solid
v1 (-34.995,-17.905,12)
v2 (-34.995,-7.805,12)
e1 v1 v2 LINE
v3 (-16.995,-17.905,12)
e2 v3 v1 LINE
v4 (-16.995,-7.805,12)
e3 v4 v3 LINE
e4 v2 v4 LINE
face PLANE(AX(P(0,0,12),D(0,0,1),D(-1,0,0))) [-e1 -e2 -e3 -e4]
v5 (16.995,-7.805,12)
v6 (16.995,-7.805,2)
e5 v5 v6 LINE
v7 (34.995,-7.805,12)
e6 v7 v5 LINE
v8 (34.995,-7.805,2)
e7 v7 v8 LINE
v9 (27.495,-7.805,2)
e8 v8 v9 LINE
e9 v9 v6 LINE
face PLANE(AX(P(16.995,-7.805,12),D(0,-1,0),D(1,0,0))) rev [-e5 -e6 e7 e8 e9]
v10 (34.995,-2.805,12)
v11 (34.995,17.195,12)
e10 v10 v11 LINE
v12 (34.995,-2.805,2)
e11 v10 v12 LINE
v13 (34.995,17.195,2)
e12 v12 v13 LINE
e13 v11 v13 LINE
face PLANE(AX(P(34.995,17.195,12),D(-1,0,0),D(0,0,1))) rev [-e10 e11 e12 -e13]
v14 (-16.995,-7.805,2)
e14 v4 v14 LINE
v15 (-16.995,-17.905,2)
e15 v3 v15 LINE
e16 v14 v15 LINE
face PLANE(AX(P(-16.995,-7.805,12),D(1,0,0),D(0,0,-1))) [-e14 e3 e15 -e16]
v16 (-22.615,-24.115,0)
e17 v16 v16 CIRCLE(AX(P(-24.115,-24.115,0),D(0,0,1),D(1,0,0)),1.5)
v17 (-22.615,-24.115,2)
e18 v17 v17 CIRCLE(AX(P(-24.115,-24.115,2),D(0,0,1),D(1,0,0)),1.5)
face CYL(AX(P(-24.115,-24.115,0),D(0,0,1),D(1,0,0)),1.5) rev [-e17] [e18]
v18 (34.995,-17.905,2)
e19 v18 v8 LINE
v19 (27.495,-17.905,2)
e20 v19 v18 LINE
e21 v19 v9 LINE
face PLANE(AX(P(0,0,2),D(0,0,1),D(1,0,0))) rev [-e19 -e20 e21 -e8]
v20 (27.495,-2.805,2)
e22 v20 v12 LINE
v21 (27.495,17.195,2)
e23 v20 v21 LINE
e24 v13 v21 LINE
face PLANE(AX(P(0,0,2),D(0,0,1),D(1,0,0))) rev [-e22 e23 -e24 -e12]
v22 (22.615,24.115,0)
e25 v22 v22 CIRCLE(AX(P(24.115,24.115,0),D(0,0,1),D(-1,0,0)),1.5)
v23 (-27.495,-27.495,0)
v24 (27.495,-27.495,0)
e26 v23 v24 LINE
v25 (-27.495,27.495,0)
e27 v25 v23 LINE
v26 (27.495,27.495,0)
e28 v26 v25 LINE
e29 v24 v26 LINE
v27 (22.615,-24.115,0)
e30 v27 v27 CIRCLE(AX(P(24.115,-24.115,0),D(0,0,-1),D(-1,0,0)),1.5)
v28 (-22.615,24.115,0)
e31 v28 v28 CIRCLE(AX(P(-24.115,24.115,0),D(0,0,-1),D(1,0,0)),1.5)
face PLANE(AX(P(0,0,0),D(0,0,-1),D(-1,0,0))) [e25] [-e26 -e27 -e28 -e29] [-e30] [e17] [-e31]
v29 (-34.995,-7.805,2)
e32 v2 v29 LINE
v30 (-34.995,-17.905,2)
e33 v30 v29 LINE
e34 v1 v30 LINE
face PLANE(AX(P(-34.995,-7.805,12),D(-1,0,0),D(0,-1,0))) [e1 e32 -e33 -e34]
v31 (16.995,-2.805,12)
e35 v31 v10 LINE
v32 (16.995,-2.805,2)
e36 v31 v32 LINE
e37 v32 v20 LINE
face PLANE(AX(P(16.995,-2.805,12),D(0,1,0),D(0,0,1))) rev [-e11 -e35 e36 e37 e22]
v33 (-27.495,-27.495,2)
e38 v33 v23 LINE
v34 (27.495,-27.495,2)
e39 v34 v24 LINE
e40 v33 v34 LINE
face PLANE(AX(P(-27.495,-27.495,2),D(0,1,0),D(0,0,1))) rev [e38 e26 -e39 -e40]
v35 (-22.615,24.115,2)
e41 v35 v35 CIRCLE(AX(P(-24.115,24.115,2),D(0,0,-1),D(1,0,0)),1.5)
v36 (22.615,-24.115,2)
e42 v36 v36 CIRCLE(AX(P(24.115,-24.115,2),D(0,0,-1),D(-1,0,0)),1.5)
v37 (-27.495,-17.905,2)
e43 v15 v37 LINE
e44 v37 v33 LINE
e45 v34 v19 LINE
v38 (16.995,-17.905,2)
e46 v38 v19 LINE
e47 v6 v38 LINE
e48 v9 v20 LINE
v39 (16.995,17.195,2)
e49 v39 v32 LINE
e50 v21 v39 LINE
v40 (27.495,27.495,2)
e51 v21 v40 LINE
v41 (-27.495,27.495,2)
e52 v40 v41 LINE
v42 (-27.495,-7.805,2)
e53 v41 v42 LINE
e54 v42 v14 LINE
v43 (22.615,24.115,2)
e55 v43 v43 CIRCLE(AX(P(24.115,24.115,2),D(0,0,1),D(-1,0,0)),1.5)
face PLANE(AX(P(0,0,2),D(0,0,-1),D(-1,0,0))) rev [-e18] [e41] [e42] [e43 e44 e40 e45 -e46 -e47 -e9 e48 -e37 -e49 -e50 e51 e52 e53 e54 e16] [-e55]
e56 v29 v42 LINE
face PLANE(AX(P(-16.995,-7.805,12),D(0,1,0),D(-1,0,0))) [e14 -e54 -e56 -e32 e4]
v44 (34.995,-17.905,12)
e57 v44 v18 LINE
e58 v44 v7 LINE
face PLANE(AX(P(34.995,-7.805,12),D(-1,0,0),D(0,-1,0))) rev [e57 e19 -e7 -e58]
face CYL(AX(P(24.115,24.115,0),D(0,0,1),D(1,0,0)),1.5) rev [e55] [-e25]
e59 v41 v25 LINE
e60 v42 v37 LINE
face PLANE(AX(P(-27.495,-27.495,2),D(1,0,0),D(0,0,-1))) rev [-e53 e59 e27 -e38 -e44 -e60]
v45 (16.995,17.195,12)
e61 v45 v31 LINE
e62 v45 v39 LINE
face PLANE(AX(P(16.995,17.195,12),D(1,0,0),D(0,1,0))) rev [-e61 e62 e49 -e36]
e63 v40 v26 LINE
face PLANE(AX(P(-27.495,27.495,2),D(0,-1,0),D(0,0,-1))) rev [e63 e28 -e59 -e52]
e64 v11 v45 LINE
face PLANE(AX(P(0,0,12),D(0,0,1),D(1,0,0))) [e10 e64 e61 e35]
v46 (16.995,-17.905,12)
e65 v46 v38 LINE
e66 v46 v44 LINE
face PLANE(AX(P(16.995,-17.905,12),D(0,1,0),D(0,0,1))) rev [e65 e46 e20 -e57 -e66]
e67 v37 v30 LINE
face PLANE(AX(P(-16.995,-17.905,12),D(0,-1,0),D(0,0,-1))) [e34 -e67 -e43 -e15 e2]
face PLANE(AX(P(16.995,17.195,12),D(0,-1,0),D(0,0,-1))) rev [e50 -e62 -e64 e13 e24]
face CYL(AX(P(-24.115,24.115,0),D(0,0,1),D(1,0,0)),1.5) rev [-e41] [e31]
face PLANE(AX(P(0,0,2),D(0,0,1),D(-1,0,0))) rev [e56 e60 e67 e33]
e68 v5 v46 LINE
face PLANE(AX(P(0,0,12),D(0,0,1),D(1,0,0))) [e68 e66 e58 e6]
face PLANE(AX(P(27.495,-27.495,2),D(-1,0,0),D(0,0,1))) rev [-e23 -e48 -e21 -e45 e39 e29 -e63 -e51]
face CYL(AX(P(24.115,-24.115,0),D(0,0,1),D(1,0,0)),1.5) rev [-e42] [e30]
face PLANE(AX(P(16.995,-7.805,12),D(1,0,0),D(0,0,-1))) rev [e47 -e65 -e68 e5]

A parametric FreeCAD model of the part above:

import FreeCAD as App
import Part
import Sketcher
from FreeCAD import Vector
Q = App.Units.Quantity

doc = App.newDocument("Part")
params = doc.addObject("Spreadsheet::Sheet", "Params")
for row, (alias, value) in enumerate([
    ("sketch1_width", "54.99 mm"),
    ("pad1_length", "2 mm"),
    ("sketch2_diameter", "3 mm"),
    ("sketch3_diameter", "3 mm"),
    ("sketch4_width", "18 mm"),
    ("sketch4_height", "20 mm"),
    ("pad2_length", "10 mm"),
    ("sketch5_width", "18 mm"),
    ("sketch5_height", "10.1 mm"),
    ("pad3_length", "10 mm"),
], start=1):
    params.set(f"A{row}", alias)
    params.set(f"B{row}", "=" + value)
    params.setAlias(f"B{row}", alias)

body = doc.addObject("PartDesign::Body", "Body")

# Sketch on XY plane
sketch1 = body.newObject("Sketcher::SketchObject", "Sketch")
sketch1.AttachmentSupport = (doc.getObject("XY_Plane"), [""])
sketch1.MapMode = "FlatFace"
sketch1.addGeometry([
    Part.LineSegment(Vector(-27, 27, 0), Vector(-27, -27, 0)),
    Part.LineSegment(Vector(-27, -27, 0), Vector(27, -27, 0)),
    Part.LineSegment(Vector(27, -27, 0), Vector(27, 27, 0)),
    Part.LineSegment(Vector(27, 27, 0), Vector(-27, 27, 0)),
], False)
sketch1.addConstraint([
    Sketcher.Constraint("Coincident", 0, 2, 1, 1),
    Sketcher.Constraint("Coincident", 1, 2, 2, 1),
    Sketcher.Constraint("Coincident", 2, 2, 3, 1),
    Sketcher.Constraint("Coincident", 3, 2, 0, 1),
    Sketcher.Constraint("Vertical", 0),
    Sketcher.Constraint("Horizontal", 1),
    Sketcher.Constraint("Vertical", 2),
    Sketcher.Constraint("Horizontal", 3),
    Sketcher.Constraint("Symmetric", 0, 2, 2, 2, -1, 1),
    Sketcher.Constraint("Equal", 3, 0),
    Sketcher.Constraint("DistanceX", 1, 1, 1, 2, Q("54.99 mm")),
])
sketch1.setExpression("Constraints[10]", "Params.sketch1_width")
pad1 = body.newObject("PartDesign::Pad", "Pad")
pad1.Profile = sketch1
pad1.setExpression("Length", "Params.pad1_length")

# Sketch on XY plane
sketch2 = body.newObject("Sketcher::SketchObject", "Sketch001")
sketch2.AttachmentSupport = (doc.getObject("XY_Plane"), [""])
sketch2.MapMode = "FlatFace"
sketch2.AttachmentOffset = App.Placement(Vector(0, 0, 2), App.Rotation())
sketch2.addGeometry(Part.Circle(Vector(-24.1, -24.1, 0), Vector(0, 0, 1), 1.5), False)
sketch2.addConstraint([
    Sketcher.Constraint("Diameter", 0, Q("3 mm")),
    Sketcher.Constraint("DistanceX", 0, 3, -1, 1, Q("24.115 mm")),
    Sketcher.Constraint("DistanceY", 0, 3, -1, 1, Q("24.115 mm")),
])
sketch2.setExpression("Constraints[0]", "Params.sketch2_diameter")
pocket1 = body.newObject("PartDesign::Pocket", "Pocket")
pocket1.Profile = sketch2
pocket1.Type = "ThroughAll"
doc.recompute()

mirrored = body.newObject("PartDesign::Mirrored", "Mirrored")
mirrored.Originals = [pocket1]
mirrored.MirrorPlane = (doc.getObject("XZ_Plane"), [""])
body.Tip = mirrored
doc.recompute()

mirrored2 = body.newObject("PartDesign::Mirrored", "Mirrored001")
mirrored2.Originals = [pocket1]
mirrored2.MirrorPlane = (doc.getObject("YZ_Plane"), [""])
body.Tip = mirrored2

# Sketch on XY plane
sketch3 = body.newObject("Sketcher::SketchObject", "Sketch002")
sketch3.AttachmentSupport = (doc.getObject("XY_Plane"), [""])
sketch3.MapMode = "FlatFace"
sketch3.AttachmentOffset = App.Placement(Vector(0, 0, 2), App.Rotation())
sketch3.addGeometry(Part.Circle(Vector(24.1, 24.1, 0), Vector(0, 0, 1), 1.5), False)
sketch3.addConstraint([
    Sketcher.Constraint("Diameter", 0, Q("3 mm")),
    Sketcher.Constraint("DistanceX", -1, 1, 0, 3, Q("24.115 mm")),
    Sketcher.Constraint("DistanceY", -1, 1, 0, 3, Q("24.115 mm")),
])
sketch3.setExpression("Constraints[0]", "Params.sketch3_diameter")
pocket2 = body.newObject("PartDesign::Pocket", "Pocket001")
pocket2.Profile = sketch3
pocket2.Type = "ThroughAll"

# Sketch on XY plane
sketch4 = body.newObject("Sketcher::SketchObject", "Sketch003")
sketch4.AttachmentSupport = (doc.getObject("XY_Plane"), [""])
sketch4.MapMode = "FlatFace"
sketch4.AttachmentOffset = App.Placement(Vector(0, 0, 2), App.Rotation())
sketch4.addGeometry([
    Part.LineSegment(Vector(17, 17, 0), Vector(17, -3, 0)),
    Part.LineSegment(Vector(17, -3, 0), Vector(35, -3, 0)),
    Part.LineSegment(Vector(35, -3, 0), Vector(35, 17, 0)),
    Part.LineSegment(Vector(35, 17, 0), Vector(17, 17, 0)),
], False)
sketch4.addConstraint([
    Sketcher.Constraint("Coincident", 0, 2, 1, 1),
    Sketcher.Constraint("Coincident", 1, 2, 2, 1),
    Sketcher.Constraint("Coincident", 2, 2, 3, 1),
    Sketcher.Constraint("Coincident", 3, 2, 0, 1),
    Sketcher.Constraint("Vertical", 0),
    Sketcher.Constraint("Horizontal", 1),
    Sketcher.Constraint("Vertical", 2),
    Sketcher.Constraint("Horizontal", 3),
    Sketcher.Constraint("DistanceX", 1, 1, 1, 2, Q("18 mm")),
    Sketcher.Constraint("DistanceY", 0, 2, 0, 1, Q("20 mm")),
    Sketcher.Constraint("DistanceX", -1, 1, 0, 2, Q("16.995 mm")),
    Sketcher.Constraint("DistanceY", 0, 2, -1, 1, Q("2.805 mm")),
])
sketch4.setExpression("Constraints[8]", "Params.sketch4_width")
sketch4.setExpression("Constraints[9]", "Params.sketch4_height")
pad2 = body.newObject("PartDesign::Pad", "Pad001")
pad2.Profile = sketch4
pad2.setExpression("Length", "Params.pad2_length")

# Sketch on XY plane
sketch5 = body.newObject("Sketcher::SketchObject", "Sketch004")
sketch5.AttachmentSupport = (doc.getObject("XY_Plane"), [""])
sketch5.MapMode = "FlatFace"
sketch5.AttachmentOffset = App.Placement(Vector(0, 0, 2), App.Rotation())
sketch5.addGeometry([
    Part.LineSegment(Vector(17, -8, 0), Vector(17, -18, 0)),
    Part.LineSegment(Vector(17, -18, 0), Vector(35, -18, 0)),
    Part.LineSegment(Vector(35, -18, 0), Vector(35, -8, 0)),
    Part.LineSegment(Vector(35, -8, 0), Vector(17, -8, 0)),
], False)
sketch5.addConstraint([
    Sketcher.Constraint("Coincident", 0, 2, 1, 1),
    Sketcher.Constraint("Coincident", 1, 2, 2, 1),
    Sketcher.Constraint("Coincident", 2, 2, 3, 1),
    Sketcher.Constraint("Coincident", 3, 2, 0, 1),
    Sketcher.Constraint("Vertical", 0),
    Sketcher.Constraint("Horizontal", 1),
    Sketcher.Constraint("Vertical", 2),
    Sketcher.Constraint("Horizontal", 3),
    Sketcher.Constraint("DistanceX", 1, 1, 1, 2, Q("18 mm")),
    Sketcher.Constraint("DistanceY", 0, 2, 0, 1, Q("10.1 mm")),
    Sketcher.Constraint("DistanceX", -1, 1, 0, 2, Q("16.995 mm")),
    Sketcher.Constraint("DistanceY", 0, 2, -1, 1, Q("17.905 mm")),
])
sketch5.setExpression("Constraints[8]", "Params.sketch5_width")
sketch5.setExpression("Constraints[9]", "Params.sketch5_height")
pad3 = body.newObject("PartDesign::Pad", "Pad002")
pad3.Profile = sketch5
pad3.setExpression("Length", "Params.pad3_length")
doc.recompute()

mirrored3 = body.newObject("PartDesign::Mirrored", "Mirrored002")
mirrored3.Originals = [pad3]
mirrored3.MirrorPlane = (doc.getObject("YZ_Plane"), [""])
body.Tip = mirrored3

doc.recompute()
